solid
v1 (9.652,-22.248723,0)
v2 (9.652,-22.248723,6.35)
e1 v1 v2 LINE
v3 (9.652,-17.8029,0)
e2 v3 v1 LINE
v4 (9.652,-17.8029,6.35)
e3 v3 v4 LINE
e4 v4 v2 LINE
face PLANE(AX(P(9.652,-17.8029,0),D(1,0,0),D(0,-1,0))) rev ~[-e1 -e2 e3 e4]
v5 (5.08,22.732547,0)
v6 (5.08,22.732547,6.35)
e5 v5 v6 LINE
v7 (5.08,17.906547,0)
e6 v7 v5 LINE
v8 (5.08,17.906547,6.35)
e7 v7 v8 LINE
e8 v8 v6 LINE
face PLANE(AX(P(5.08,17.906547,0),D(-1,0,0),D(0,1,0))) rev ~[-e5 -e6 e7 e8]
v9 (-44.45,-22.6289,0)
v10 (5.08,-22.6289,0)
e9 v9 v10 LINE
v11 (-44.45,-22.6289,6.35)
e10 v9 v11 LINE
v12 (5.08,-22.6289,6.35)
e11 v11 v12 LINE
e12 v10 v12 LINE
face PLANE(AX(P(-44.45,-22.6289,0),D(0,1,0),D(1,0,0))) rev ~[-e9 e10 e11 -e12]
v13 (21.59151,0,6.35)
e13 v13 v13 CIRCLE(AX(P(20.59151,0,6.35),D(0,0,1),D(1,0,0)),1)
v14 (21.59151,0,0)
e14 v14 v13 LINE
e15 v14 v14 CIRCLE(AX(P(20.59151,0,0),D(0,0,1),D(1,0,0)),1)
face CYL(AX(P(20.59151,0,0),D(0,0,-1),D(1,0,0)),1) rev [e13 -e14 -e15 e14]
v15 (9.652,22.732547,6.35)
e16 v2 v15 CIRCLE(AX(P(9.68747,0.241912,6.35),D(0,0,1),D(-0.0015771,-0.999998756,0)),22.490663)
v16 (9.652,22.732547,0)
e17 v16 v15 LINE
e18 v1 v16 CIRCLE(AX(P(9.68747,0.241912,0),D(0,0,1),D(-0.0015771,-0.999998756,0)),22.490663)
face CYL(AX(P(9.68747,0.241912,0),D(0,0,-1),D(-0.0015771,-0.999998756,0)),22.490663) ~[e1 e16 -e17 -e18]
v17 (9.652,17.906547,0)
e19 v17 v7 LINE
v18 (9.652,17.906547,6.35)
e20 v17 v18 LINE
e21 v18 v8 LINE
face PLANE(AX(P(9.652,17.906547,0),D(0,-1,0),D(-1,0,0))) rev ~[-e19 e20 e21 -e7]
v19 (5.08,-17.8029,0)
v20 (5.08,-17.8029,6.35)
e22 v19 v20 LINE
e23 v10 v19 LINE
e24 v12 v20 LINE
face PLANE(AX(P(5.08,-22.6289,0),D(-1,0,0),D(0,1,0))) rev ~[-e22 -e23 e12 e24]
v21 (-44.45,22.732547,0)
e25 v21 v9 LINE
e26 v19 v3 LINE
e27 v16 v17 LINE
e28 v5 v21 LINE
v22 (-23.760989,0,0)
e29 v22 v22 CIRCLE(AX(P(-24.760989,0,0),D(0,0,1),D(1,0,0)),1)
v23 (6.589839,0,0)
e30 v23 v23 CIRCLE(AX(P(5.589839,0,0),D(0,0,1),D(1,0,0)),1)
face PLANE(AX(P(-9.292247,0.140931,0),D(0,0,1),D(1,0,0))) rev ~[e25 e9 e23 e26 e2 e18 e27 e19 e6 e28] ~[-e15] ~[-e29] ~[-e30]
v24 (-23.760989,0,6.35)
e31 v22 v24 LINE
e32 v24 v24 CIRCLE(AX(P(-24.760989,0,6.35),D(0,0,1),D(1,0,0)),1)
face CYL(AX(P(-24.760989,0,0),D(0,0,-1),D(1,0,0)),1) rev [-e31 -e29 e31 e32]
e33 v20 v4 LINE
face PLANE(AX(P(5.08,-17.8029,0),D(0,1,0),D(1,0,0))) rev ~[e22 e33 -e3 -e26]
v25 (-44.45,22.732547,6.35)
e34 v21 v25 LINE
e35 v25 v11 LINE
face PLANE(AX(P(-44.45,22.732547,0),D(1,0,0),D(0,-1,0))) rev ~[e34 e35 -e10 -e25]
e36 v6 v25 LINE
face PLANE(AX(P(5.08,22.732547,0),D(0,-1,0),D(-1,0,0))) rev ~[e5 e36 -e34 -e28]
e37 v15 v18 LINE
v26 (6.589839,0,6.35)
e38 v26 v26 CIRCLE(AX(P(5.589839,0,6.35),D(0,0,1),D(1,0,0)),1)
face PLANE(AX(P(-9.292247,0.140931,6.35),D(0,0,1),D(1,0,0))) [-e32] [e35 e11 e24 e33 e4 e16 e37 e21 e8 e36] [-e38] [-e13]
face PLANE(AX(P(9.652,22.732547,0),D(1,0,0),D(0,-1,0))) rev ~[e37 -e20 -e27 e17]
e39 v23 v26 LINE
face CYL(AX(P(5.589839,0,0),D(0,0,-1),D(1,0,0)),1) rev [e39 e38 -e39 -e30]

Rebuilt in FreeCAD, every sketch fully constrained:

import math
import FreeCAD as App
import Part
import Sketcher
from FreeCAD import Vector
Q = App.Units.Quantity

doc = App.newDocument("Part")
body = doc.addObject("PartDesign::Body", "Body")

# Sketch on XY plane
sketch1 = doc.addObject("Sketcher::SketchObject", "Sketch")
body.addObject(sketch1)
sketch1.AttachmentSupport = (doc.XY_Plane, [""])
sketch1.MapMode = "FlatFace"
sketch1.addGeometry([
    Part.LineSegment(Vector(-44.45, 22.732547, 0), Vector(-44.45, -22.6289, 0)),  # 0
    Part.LineSegment(Vector(-44.45, -22.6289, 0), Vector(5.08, -22.6289, 0)),  # 1
    Part.LineSegment(Vector(5.08, -22.6289, 0), Vector(5.08, -17.8029, 0)),  # 2
    Part.LineSegment(Vector(5.08, -17.8029, 0), Vector(9.652, -17.8029, 0)),  # 3
    Part.LineSegment(Vector(9.652, -17.8029, 0), Vector(9.652, -22.248723, 0)),  # 4
    Part.ArcOfCircle(Part.Circle(Vector(9.68747, 0.241912, 0), Vector(0, 0, 1), 22.490663), math.radians(-90.090361), math.radians(90.090361)),  # 5
    Part.LineSegment(Vector(9.652, 22.732547, 0), Vector(9.652, 17.906547, 0)),  # 6
    Part.LineSegment(Vector(9.652, 17.906547, 0), Vector(5.08, 17.906547, 0)),  # 7
    Part.LineSegment(Vector(5.08, 17.906547, 0), Vector(5.08, 22.732547, 0)),  # 8
    Part.LineSegment(Vector(5.08, 22.732547, 0), Vector(-44.45, 22.732547, 0)),  # 9
    Part.Circle(Vector(-24.760989, 0, 0), Vector(0, 0, 1), 1),  # 10
    Part.Circle(Vector(5.589839, 0, 0), Vector(0, 0, 1), 1),  # 11
    Part.Circle(Vector(20.59151, 0, 0), Vector(0, 0, 1), 1),  # 12
], False)
sketch1.addConstraint([
    Sketcher.Constraint("Coincident", 0, 2, 1, 1),
    Sketcher.Constraint("Coincident", 1, 2, 2, 1),
    Sketcher.Constraint("Coincident", 2, 2, 3, 1),
    Sketcher.Constraint("Coincident", 3, 2, 4, 1),
    Sketcher.Constraint("Coincident", 4, 2, 5, 1),
    Sketcher.Constraint("Coincident", 5, 2, 6, 1),
    Sketcher.Constraint("Coincident", 6, 2, 7, 1),
    Sketcher.Constraint("Coincident", 7, 2, 8, 1),
    Sketcher.Constraint("Coincident", 8, 2, 9, 1),
    Sketcher.Constraint("Coincident", 9, 2, 0, 1),
    Sketcher.Constraint("Vertical", 0),
    Sketcher.Constraint("Horizontal", 1),
    Sketcher.Constraint("Vertical", 2),
    Sketcher.Constraint("Horizontal", 3),
    Sketcher.Constraint("Vertical", 4),
    Sketcher.Constraint("Vertical", 6),
    Sketcher.Constraint("Horizontal", 7),
    Sketcher.Constraint("Vertical", 8),
    Sketcher.Constraint("Horizontal", 9),
    Sketcher.Constraint("Equal", 10, 11),
    Sketcher.Constraint("Equal", 11, 12),
    Sketcher.Constraint("PointOnObject", 10, 3, -1),
    Sketcher.Constraint("PointOnObject", 11, 3, -1),
    Sketcher.Constraint("PointOnObject", 12, 3, -1),
    Sketcher.Constraint("Horizontal", 5, 2, 8, 2),
    Sketcher.Constraint("Vertical", 4, 2, 5, 2),
    Sketcher.Constraint("Vertical", 2, 2, 7, 2),
    Sketcher.Constraint("Equal", 2, 6),
    Sketcher.Constraint("DistanceX", 1, 1, 1, 2, Q("1.95 in")),
    Sketcher.Constraint("DistanceX", 3, 1, 3, 2, Q("0.18 in")),
    Sketcher.Constraint("DistanceY", 2, 1, 2, 2, Q("0.19 in")),
    Sketcher.Constraint("DistanceX", -1, 1, 1, 2, Q("0.2 in")),
    Sketcher.Constraint("Diameter", 10, 2.0),
    Sketcher.Constraint("Radius", 5, 22.490663),
    Sketcher.Constraint("DistanceY", 0, 2, -1, 1, 22.6289),
    Sketcher.Constraint("DistanceX", 10, 3, 12, 3, 45.352499),
    Sketcher.Constraint("DistanceY", 0, 2, 0, 1, 45.361447),
    Sketcher.Constraint("DistanceY", 4, 2, 4, 1, 4.445823),
    Sketcher.Constraint("DistanceX", 10, 3, -1, 1, 24.760989),
    Sketcher.Constraint("DistanceX", -1, 1, 11, 3, 5.589839),
])
pad1 = doc.addObject("PartDesign::Pad", "Pad")
body.addObject(pad1)
pad1.Profile = sketch1
pad1.Length = Q("0.25 in")

doc.recompute()
